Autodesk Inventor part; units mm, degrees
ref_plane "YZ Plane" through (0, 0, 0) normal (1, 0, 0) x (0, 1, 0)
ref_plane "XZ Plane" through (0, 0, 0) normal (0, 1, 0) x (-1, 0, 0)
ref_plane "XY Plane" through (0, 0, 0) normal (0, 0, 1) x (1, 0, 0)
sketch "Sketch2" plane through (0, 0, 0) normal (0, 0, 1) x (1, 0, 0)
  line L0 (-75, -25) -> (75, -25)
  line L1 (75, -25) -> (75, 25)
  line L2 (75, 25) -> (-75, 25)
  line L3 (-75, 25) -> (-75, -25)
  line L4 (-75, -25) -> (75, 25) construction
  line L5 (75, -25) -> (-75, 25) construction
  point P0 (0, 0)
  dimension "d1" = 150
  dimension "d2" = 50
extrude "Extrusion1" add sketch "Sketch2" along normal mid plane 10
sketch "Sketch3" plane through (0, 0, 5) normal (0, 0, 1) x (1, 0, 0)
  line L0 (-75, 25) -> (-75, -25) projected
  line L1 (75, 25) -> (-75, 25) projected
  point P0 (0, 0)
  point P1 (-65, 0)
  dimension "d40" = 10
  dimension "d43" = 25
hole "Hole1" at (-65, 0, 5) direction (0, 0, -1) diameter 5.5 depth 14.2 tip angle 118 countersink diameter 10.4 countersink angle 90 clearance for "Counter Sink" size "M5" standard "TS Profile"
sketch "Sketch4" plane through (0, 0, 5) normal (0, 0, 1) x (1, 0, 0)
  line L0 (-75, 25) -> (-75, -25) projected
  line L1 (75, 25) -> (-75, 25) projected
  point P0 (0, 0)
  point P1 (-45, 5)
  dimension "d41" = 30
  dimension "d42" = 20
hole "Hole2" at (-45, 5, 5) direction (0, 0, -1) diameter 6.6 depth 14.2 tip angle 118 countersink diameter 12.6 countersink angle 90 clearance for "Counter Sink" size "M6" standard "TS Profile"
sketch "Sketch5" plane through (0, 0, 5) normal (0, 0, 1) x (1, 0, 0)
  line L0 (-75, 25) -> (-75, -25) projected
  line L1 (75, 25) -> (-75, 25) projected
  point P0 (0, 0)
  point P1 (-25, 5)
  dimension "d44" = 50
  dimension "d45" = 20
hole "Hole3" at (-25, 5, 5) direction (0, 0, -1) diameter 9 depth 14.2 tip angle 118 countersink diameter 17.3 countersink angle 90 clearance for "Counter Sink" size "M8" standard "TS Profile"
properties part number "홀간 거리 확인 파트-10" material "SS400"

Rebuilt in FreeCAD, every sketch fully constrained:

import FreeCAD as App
import Part
import Sketcher

V = App.Vector

doc = App.newDocument("Part")
params = doc.addObject("Spreadsheet::Sheet", "Params")
for row, (alias, value) in enumerate([
    ("sketch1_width", "150 mm"),
    ("sketch1_height", "50 mm"),
    ("pad1_length", "10 mm"),
    ("sketch2_diameter", "5.5 mm"),
    ("hole_diameter", "5.5 mm"),
    ("hole_depth", "14.2 mm"),
    ("hole_csink_diameter", "10.4 mm"),
    ("sketch3_diameter", "6.6 mm"),
    ("hole2_diameter", "6.6 mm"),
    ("hole2_depth", "14.2 mm"),
    ("hole2_csink_diameter", "12.6 mm"),
    ("sketch4_diameter", "9 mm"),
    ("hole3_diameter", "9 mm"),
    ("hole3_depth", "14.2 mm"),
    ("hole3_csink_diameter", "17.3 mm"),
], start=1):
    params.set(f"A{row}", alias)
    params.set(f"B{row}", "=" + value)
    params.setAlias(f"B{row}", alias)

body = doc.addObject("PartDesign::Body", "Body")

# Sketch on XY plane
sketch1 = body.newObject("Sketcher::SketchObject", "Sketch")
sketch1.AttachmentSupport = (doc.getObject("XY_Plane"), [""])
sketch1.MapMode = "FlatFace"
sketch1.addGeometry(Part.LineSegment(V(-75, 25, 0), V(-75, -25, 0)), False)
sketch1.addGeometry(Part.LineSegment(V(-75, -25, 0), V(75, -25, 0)), False)
sketch1.addGeometry(Part.LineSegment(V(75, -25, 0), V(75, 25, 0)), False)
sketch1.addGeometry(Part.LineSegment(V(75, 25, 0), V(-75, 25, 0)), False)
sketch1.addConstraint(Sketcher.Constraint("Coincident", 0, 2, 1, 1))
sketch1.addConstraint(Sketcher.Constraint("Coincident", 1, 2, 2, 1))
sketch1.addConstraint(Sketcher.Constraint("Coincident", 2, 2, 3, 1))
sketch1.addConstraint(Sketcher.Constraint("Coincident", 3, 2, 0, 1))
sketch1.addConstraint(Sketcher.Constraint("Vertical", 0))
sketch1.addConstraint(Sketcher.Constraint("Horizontal", 1))
sketch1.addConstraint(Sketcher.Constraint("Vertical", 2))
sketch1.addConstraint(Sketcher.Constraint("Horizontal", 3))
sketch1.addConstraint(Sketcher.Constraint("Symmetric", 0, 2, 2, 2, -1, 1))
sketch1.addConstraint(Sketcher.Constraint("DistanceX", 1, 1, 1, 2, 150.0))
sketch1.addConstraint(Sketcher.Constraint("DistanceY", 0, 2, 0, 1, 50.0))
sketch1.setExpression("Constraints[9]", "Params.sketch1_width")
sketch1.setExpression("Constraints[10]", "Params.sketch1_height")
pad1 = body.newObject("PartDesign::Pad", "Pad")
pad1.Profile = sketch1
pad1.setExpression("Length", "Params.pad1_length")
pad1.Midplane = True

# Sketch on XY plane
sketch2 = body.newObject("Sketcher::SketchObject", "Sketch001")
sketch2.AttachmentSupport = (doc.getObject("XY_Plane"), [""])
sketch2.MapMode = "FlatFace"
sketch2.AttachmentOffset = App.Placement(V(0, 0, 5), App.Rotation())
sketch2.addGeometry(Part.Circle(V(-65, 0, 0), V(0, 0, 1), 2.8), False)
sketch2.addConstraint(Sketcher.Constraint("PointOnObject", 0, 3, -1))
sketch2.addConstraint(Sketcher.Constraint("Diameter", 0, 5.5))
sketch2.addConstraint(Sketcher.Constraint("DistanceX", 0, 3, -1, 1, 65.0))
sketch2.setExpression("Constraints[1]", "Params.sketch2_diameter")
doc.recompute()
hole = body.newObject("PartDesign::Hole", "Hole")
hole.Profile = sketch2
hole.ThreadType = "None"
hole.setExpression("Diameter", "Params.hole_diameter")
hole.DepthType = "Dimension"
hole.setExpression("Depth", "Params.hole_depth")
hole.DrillPoint = "Angled"
hole.DrillPointAngle = 118
hole.HoleCutType = "Countersink"
hole.setExpression("HoleCutDiameter", "Params.hole_csink_diameter")
hole.HoleCutCountersinkAngle = 90

# Sketch on XY plane
sketch3 = body.newObject("Sketcher::SketchObject", "Sketch002")
sketch3.AttachmentSupport = (doc.getObject("XY_Plane"), [""])
sketch3.MapMode = "FlatFace"
sketch3.AttachmentOffset = App.Placement(V(0, 0, 5), App.Rotation())
sketch3.addGeometry(Part.Circle(V(-45, 5, 0), V(0, 0, 1), 3.3), False)
sketch3.addConstraint(Sketcher.Constraint("Diameter", 0, 6.6))
sketch3.addConstraint(Sketcher.Constraint("DistanceX", 0, 3, -1, 1, 45.0))
sketch3.addConstraint(Sketcher.Constraint("DistanceY", -1, 1, 0, 3, 5.0))
sketch3.setExpression("Constraints[0]", "Params.sketch3_diameter")
doc.recompute()
hole2 = body.newObject("PartDesign::Hole", "Hole001")
hole2.Profile = sketch3
hole2.ThreadType = "None"
hole2.setExpression("Diameter", "Params.hole2_diameter")
hole2.DepthType = "Dimension"
hole2.setExpression("Depth", "Params.hole2_depth")
hole2.DrillPoint = "Angled"
hole2.DrillPointAngle = 118
hole2.HoleCutType = "Countersink"
hole2.setExpression("HoleCutDiameter", "Params.hole2_csink_diameter")
hole2.HoleCutCountersinkAngle = 90

# Sketch on XY plane
sketch4 = body.newObject("Sketcher::SketchObject", "Sketch003")
sketch4.AttachmentSupport = (doc.getObject("XY_Plane"), [""])
sketch4.MapMode = "FlatFace"
sketch4.AttachmentOffset = App.Placement(V(0, 0, 5), App.Rotation())
sketch4.addGeometry(Part.Circle(V(-25, 5, 0), V(0, 0, 1), 4.5), False)
sketch4.addConstraint(Sketcher.Constraint("Diameter", 0, 9.0))
sketch4.addConstraint(Sketcher.Constraint("DistanceX", 0, 3, -1, 1, 25.0))
sketch4.addConstraint(Sketcher.Constraint("DistanceY", -1, 1, 0, 3, 5.0))
sketch4.setExpression("Constraints[0]", "Params.sketch4_diameter")
doc.recompute()
hole3 = body.newObject("PartDesign::Hole", "Hole002")
hole3.Profile = sketch4
hole3.ThreadType = "None"
hole3.setExpression("Diameter", "Params.hole3_diameter")
hole3.DepthType = "Dimension"
hole3.setExpression("Depth", "Params.hole3_depth")
hole3.DrillPoint = "Angled"
hole3.DrillPointAngle = 118
hole3.HoleCutType = "Countersink"
hole3.setExpression("HoleCutDiameter", "Params.hole3_csink_diameter")
hole3.HoleCutCountersinkAngle = 90

doc.recompute()
